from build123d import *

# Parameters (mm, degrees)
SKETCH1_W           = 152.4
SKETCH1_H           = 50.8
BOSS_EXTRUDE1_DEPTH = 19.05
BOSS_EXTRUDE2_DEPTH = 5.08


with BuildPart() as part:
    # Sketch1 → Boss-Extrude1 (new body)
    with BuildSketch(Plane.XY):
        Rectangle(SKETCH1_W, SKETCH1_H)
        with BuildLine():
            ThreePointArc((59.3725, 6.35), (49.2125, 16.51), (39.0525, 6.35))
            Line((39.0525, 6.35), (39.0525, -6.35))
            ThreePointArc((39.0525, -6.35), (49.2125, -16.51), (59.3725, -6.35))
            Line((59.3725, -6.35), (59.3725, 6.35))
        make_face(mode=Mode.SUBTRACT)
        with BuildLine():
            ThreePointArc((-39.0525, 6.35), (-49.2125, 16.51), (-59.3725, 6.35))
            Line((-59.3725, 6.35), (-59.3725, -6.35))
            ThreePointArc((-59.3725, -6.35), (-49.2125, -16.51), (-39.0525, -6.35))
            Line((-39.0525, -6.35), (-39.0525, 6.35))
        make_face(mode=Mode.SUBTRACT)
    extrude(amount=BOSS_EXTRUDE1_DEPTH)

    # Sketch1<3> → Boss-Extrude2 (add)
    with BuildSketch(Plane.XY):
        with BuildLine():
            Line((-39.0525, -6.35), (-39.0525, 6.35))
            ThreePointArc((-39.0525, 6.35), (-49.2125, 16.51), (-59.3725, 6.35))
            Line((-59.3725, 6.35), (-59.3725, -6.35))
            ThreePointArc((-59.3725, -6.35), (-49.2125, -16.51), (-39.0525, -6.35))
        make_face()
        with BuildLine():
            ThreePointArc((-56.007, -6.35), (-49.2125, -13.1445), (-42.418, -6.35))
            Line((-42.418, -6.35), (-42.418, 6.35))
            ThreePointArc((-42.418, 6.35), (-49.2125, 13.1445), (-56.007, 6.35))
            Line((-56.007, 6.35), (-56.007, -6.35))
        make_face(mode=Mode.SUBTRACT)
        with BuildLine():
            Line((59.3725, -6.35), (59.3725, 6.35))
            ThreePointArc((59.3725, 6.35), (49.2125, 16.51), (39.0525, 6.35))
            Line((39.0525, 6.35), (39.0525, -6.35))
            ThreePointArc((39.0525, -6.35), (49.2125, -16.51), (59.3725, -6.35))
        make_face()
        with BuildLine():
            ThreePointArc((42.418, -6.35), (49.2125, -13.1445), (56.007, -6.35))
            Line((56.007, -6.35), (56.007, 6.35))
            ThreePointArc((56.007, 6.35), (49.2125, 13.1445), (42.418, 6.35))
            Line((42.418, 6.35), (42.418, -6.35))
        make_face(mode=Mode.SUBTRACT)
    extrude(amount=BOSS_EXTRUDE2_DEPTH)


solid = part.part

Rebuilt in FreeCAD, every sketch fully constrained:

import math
import FreeCAD as App
import Part
import Sketcher
from FreeCAD import Vector
Q = App.Units.Quantity

doc = App.newDocument("Part")
body = doc.addObject("PartDesign::Body", "Body")

# Sketch on XY plane
sketch1 = body.newObject("Sketcher::SketchObject", "Sketch")
sketch1.AttachmentSupport = (doc.getObject("XY_Plane"), [""])
sketch1.MapMode = "FlatFace"
sketch1.addGeometry([
    Part.LineSegment(Vector(-76, 25, 0), Vector(-76, -25, 0)),  # 0
    Part.LineSegment(Vector(-76, -25, 0), Vector(76, -25, 0)),  # 1
    Part.LineSegment(Vector(76, -25, 0), Vector(76, 25, 0)),  # 2
    Part.LineSegment(Vector(76, 25, 0), Vector(-76, 25, 0)),  # 3
    Part.ArcOfCircle(Part.Circle(Vector(-49, 6, 0), Vector(0, 0, 1), 10), math.radians(0), math.radians(180)),  # 4
    Part.LineSegment(Vector(-39, 6, 0), Vector(-39, -6, 0)),  # 5
    Part.ArcOfCircle(Part.Circle(Vector(-49, -6, 0), Vector(0, 0, 1), 10), math.radians(180), math.radians(360)),  # 6
    Part.LineSegment(Vector(-59, -6, 0), Vector(-59, 6, 0)),  # 7
    Part.ArcOfCircle(Part.Circle(Vector(49, 6, 0), Vector(0, 0, 1), 10), math.radians(0), math.radians(180)),  # 8
    Part.LineSegment(Vector(59, 6, 0), Vector(59, -6, 0)),  # 9
    Part.ArcOfCircle(Part.Circle(Vector(49, -6, 0), Vector(0, 0, 1), 10), math.radians(180), math.radians(360)),  # 10
    Part.LineSegment(Vector(39, -6, 0), Vector(39, 6, 0)),  # 11
], False)
sketch1.addConstraint([
    Sketcher.Constraint("Coincident", 0, 2, 1, 1),
    Sketcher.Constraint("Coincident", 1, 2, 2, 1),
    Sketcher.Constraint("Coincident", 2, 2, 3, 1),
    Sketcher.Constraint("Coincident", 3, 2, 0, 1),
    Sketcher.Constraint("Tangent", 4, 1, 5, 1),
    Sketcher.Constraint("Tangent", 5, 2, 6, 2),
    Sketcher.Constraint("Tangent", 6, 1, 7, 1),
    Sketcher.Constraint("Tangent", 7, 2, 4, 2),
    Sketcher.Constraint("Tangent", 8, 1, 9, 1),
    Sketcher.Constraint("Tangent", 9, 2, 10, 2),
    Sketcher.Constraint("Tangent", 10, 1, 11, 1),
    Sketcher.Constraint("Tangent", 11, 2, 8, 2),
    Sketcher.Constraint("Vertical", 0),
    Sketcher.Constraint("Horizontal", 1),
    Sketcher.Constraint("Vertical", 2),
    Sketcher.Constraint("Horizontal", 3),
    Sketcher.Constraint("Vertical", 5),
    Sketcher.Constraint("Vertical", 7),
    Sketcher.Constraint("Vertical", 9),
    Sketcher.Constraint("Vertical", 11),
    Sketcher.Constraint("Equal", 6, 8),
    Sketcher.Constraint("Symmetric", 6, 3, 8, 3, -1, 1),
    Sketcher.Constraint("Symmetric", 0, 2, 2, 2, -1, 1),
    Sketcher.Constraint("Horizontal", 4, 3, 8, 3),
    Sketcher.Constraint("Horizontal", 6, 3, 10, 3),
    Sketcher.Constraint("Radius", 4, Q("0.4 in")),
    Sketcher.Constraint("DistanceX", 1, 1, 1, 2, Q("6 in")),
    Sketcher.Constraint("DistanceY", 0, 2, 0, 1, Q("2 in")),
    Sketcher.Constraint("DistanceY", 5, 2, 5, 1, Q("0.5 in")),
    Sketcher.Constraint("DistanceX", 4, 3, -1, 1, Q("1.9375 in")),
])
pad1 = body.newObject("PartDesign::Pad", "Pad")
pad1.Profile = sketch1
pad1.Length = Q("0.75 in")

# Sketch on XY plane
sketch2 = body.newObject("Sketcher::SketchObject", "Sketch001")
sketch2.AttachmentSupport = (doc.getObject("XY_Plane"), [""])
sketch2.MapMode = "FlatFace"
sketch2.addGeometry([
    Part.LineSegment(Vector(-39, -6, 0), Vector(-39, 6, 0)),  # 0
    Part.ArcOfCircle(Part.Circle(Vector(-49, 6, 0), Vector(0, 0, 1), 10), math.radians(0), math.radians(180)),  # 1
    Part.LineSegment(Vector(-59, 6, 0), Vector(-59, -6, 0)),  # 2
    Part.ArcOfCircle(Part.Circle(Vector(-49, -6, 0), Vector(0, 0, 1), 10), math.radians(180), math.radians(360)),  # 3
    Part.ArcOfCircle(Part.Circle(Vector(-49, -6, 0), Vector(0, 0, 1), 7), math.radians(180), math.radians(360)),  # 4
    Part.LineSegment(Vector(-56, -6, 0), Vector(-56, 6, 0)),  # 5
    Part.ArcOfCircle(Part.Circle(Vector(-49, 6, 0), Vector(0, 0, 1), 7), math.radians(0), math.radians(180)),  # 6
    Part.LineSegment(Vector(-42, 6, 0), Vector(-42, -6, 0)),  # 7
    Part.LineSegment(Vector(59, -6, 0), Vector(59, 6, 0)),  # 8
    Part.ArcOfCircle(Part.Circle(Vector(49, 6, 0), Vector(0, 0, 1), 10), math.radians(0), math.radians(180)),  # 9
    Part.LineSegment(Vector(39, 6, 0), Vector(39, -6, 0)),  # 10
    Part.ArcOfCircle(Part.Circle(Vector(49, -6, 0), Vector(0, 0, 1), 10), math.radians(180), math.radians(360)),  # 11
    Part.ArcOfCircle(Part.Circle(Vector(49, -6, 0), Vector(0, 0, 1), 7), math.radians(180), math.radians(360)),  # 12
    Part.LineSegment(Vector(42, -6, 0), Vector(42, 6, 0)),  # 13
    Part.ArcOfCircle(Part.Circle(Vector(49, 6, 0), Vector(0, 0, 1), 7), math.radians(0), math.radians(180)),  # 14
    Part.LineSegment(Vector(56, 6, 0), Vector(56, -6, 0)),  # 15
], False)
sketch2.addConstraint([
    Sketcher.Constraint("Tangent", 0, 2, 1, 1),
    Sketcher.Constraint("Tangent", 1, 2, 2, 1),
    Sketcher.Constraint("Tangent", 2, 2, 3, 1),
    Sketcher.Constraint("Tangent", 3, 2, 0, 1),
    Sketcher.Constraint("Tangent", 4, 1, 5, 1),
    Sketcher.Constraint("Tangent", 5, 2, 6, 2),
    Sketcher.Constraint("Tangent", 6, 1, 7, 1),
    Sketcher.Constraint("Tangent", 7, 2, 4, 2),
    Sketcher.Constraint("Tangent", 8, 2, 9, 1),
    Sketcher.Constraint("Tangent", 9, 2, 10, 1),
    Sketcher.Constraint("Tangent", 10, 2, 11, 1),
    Sketcher.Constraint("Tangent", 11, 2, 8, 1),
    Sketcher.Constraint("Tangent", 12, 1, 13, 1),
    Sketcher.Constraint("Tangent", 13, 2, 14, 2),
    Sketcher.Constraint("Tangent", 14, 1, 15, 1),
    Sketcher.Constraint("Tangent", 15, 2, 12, 2),
    Sketcher.Constraint("Vertical", 0),
    Sketcher.Constraint("Vertical", 2),
    Sketcher.Constraint("Vertical", 5),
    Sketcher.Constraint("Vertical", 7),
    Sketcher.Constraint("Vertical", 8),
    Sketcher.Constraint("Vertical", 10),
    Sketcher.Constraint("Vertical", 13),
    Sketcher.Constraint("Vertical", 15),
    Sketcher.Constraint("Coincident", 4, 3, 3, 3),
    Sketcher.Constraint("Coincident", 12, 3, 11, 3),
    Sketcher.Constraint("Equal", 3, 9),
    Sketcher.Constraint("Equal", 6, 12),
    Sketcher.Constraint("Symmetric", 3, 3, 9, 3, -1, 1),
    Sketcher.Constraint("Horizontal", 6, 3, 9, 3),
    Sketcher.Constraint("Horizontal", 4, 3, 11, 3),
    Sketcher.Constraint("Horizontal", 6, 3, 14, 3),
    Sketcher.Constraint("Horizontal", 14, 3, 0, 2),
    Sketcher.Constraint("Radius", 1, Q("0.4 in")),
    Sketcher.Constraint("DistanceY", 0, 1, 0, 2, Q("0.5 in")),
    Sketcher.Constraint("Radius", 4, Q("0.2675 in")),
    Sketcher.Constraint("DistanceX", 6, 1, -1, 1, Q("1.67 in")),
])
pad2 = body.newObject("PartDesign::Pad", "Pad001")
pad2.Profile = sketch2
pad2.Length = Q("0.2 in")

doc.recompute()
